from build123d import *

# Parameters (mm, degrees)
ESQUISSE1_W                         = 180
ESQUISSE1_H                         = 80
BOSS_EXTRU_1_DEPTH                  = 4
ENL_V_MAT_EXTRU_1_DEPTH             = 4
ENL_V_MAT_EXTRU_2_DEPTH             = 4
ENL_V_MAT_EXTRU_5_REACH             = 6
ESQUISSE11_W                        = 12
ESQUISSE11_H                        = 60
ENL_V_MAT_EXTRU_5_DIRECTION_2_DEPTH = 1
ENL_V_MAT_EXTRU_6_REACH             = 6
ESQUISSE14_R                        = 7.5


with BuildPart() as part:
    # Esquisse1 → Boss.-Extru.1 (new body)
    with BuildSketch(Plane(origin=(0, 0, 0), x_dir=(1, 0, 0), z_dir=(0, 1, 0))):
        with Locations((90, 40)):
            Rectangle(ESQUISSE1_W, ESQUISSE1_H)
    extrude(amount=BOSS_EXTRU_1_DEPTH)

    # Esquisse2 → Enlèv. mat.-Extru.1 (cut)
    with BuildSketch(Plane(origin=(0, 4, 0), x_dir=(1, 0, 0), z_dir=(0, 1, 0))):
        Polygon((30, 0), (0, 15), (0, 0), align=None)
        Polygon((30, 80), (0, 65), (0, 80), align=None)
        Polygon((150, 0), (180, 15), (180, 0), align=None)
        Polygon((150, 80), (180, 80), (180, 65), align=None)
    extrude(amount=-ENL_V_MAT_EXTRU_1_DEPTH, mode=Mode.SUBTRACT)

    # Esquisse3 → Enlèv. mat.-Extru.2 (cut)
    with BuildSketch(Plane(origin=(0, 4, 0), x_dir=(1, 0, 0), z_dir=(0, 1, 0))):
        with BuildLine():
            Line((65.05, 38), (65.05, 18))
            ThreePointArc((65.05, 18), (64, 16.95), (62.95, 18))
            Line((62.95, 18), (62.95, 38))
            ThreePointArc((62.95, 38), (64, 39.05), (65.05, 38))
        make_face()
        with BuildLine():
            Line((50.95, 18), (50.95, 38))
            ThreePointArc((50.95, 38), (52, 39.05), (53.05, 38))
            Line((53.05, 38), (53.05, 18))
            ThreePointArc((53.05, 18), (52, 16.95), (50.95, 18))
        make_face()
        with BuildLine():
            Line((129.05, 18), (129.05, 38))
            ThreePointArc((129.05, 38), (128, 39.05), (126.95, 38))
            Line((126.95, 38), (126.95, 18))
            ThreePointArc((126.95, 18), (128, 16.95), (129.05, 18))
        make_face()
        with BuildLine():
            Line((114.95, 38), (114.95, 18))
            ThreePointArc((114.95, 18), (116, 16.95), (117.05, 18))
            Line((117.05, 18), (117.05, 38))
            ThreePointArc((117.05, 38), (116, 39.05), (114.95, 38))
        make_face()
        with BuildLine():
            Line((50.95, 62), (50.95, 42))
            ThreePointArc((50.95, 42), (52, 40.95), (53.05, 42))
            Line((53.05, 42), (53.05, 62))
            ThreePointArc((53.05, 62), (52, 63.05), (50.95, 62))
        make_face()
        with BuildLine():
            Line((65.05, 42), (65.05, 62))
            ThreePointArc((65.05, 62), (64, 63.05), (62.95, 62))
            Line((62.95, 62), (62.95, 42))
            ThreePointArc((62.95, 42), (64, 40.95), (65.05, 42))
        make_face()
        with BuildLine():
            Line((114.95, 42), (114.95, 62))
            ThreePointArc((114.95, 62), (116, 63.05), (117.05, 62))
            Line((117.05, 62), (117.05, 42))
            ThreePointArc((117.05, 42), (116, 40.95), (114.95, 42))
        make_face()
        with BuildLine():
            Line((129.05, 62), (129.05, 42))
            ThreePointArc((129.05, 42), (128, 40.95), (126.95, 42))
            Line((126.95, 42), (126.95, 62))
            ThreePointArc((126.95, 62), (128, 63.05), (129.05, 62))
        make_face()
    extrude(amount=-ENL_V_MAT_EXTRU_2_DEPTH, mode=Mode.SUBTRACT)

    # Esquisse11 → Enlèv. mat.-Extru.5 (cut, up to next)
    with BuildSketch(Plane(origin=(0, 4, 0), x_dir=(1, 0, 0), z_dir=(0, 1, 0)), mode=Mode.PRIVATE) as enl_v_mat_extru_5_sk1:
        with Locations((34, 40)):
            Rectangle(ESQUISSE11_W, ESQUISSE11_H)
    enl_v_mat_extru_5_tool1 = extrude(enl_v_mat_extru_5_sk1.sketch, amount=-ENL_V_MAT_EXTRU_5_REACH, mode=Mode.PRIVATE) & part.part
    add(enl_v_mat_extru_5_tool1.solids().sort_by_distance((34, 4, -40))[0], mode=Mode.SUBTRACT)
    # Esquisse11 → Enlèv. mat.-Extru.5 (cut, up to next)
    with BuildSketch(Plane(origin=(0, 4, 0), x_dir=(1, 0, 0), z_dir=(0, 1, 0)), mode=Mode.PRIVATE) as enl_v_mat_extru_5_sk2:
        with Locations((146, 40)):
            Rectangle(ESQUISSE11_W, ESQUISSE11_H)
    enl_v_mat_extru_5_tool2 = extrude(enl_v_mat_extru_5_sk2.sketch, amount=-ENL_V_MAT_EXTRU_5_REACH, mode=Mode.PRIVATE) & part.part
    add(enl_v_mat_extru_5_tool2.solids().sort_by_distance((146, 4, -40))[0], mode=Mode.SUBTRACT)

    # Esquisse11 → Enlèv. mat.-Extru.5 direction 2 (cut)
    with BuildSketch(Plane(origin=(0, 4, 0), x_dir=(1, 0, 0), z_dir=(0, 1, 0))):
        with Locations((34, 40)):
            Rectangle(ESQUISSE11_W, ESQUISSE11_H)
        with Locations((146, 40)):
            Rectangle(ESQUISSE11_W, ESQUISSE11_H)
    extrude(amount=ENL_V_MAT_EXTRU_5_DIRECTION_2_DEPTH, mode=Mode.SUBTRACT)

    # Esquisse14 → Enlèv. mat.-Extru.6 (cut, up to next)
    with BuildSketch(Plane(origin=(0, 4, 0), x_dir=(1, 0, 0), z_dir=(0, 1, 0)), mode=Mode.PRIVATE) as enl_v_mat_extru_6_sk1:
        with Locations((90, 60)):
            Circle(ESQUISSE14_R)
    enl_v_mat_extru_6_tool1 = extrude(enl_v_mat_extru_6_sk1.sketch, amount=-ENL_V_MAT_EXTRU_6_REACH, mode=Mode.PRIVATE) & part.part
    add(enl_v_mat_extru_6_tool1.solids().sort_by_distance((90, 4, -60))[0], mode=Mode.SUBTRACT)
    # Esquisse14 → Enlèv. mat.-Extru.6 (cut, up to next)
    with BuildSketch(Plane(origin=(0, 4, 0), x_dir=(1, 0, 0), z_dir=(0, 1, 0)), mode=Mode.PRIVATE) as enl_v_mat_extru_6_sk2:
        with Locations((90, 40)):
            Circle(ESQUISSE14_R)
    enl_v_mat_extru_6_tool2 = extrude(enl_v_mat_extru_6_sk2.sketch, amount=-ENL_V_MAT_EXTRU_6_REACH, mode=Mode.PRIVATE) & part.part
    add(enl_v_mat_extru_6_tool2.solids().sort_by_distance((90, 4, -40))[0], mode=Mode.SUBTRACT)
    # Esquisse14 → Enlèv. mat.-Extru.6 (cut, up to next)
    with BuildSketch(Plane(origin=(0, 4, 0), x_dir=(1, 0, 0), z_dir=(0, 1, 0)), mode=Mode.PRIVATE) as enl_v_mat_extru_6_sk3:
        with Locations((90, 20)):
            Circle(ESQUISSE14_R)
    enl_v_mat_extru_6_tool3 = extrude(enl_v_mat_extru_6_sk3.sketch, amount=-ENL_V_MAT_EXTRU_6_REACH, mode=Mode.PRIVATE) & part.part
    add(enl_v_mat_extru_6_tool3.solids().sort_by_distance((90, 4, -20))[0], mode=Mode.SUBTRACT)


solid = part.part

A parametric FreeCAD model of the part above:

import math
import FreeCAD as App
import Part
import Sketcher
from FreeCAD import Vector

doc = App.newDocument("Part")
body = doc.addObject("PartDesign::Body", "Body")

sketch1 = body.newObject("Sketcher::SketchObject", "Sketch")
sketch1.AttachmentSupport = (doc.getObject("XZ_Plane"), [""])
sketch1.MapMode = "FlatFace"
sketch1.addGeometry([
    Part.LineSegment(Vector(0, -80, 0), Vector(0, 0, 0)),
    Part.LineSegment(Vector(0, 0, 0), Vector(180, 0, 0)),
    Part.LineSegment(Vector(180, 0, 0), Vector(180, -80, 0)),
    Part.LineSegment(Vector(180, -80, 0), Vector(0, -80, 0)),
], False)
sketch1.addConstraint([
    Sketcher.Constraint("Coincident", 0, 2, 1, 1),
    Sketcher.Constraint("Coincident", 1, 2, 2, 1),
    Sketcher.Constraint("Coincident", 2, 2, 3, 1),
    Sketcher.Constraint("Coincident", 3, 2, 0, 1),
    Sketcher.Constraint("Vertical", 0),
    Sketcher.Constraint("Horizontal", 1),
    Sketcher.Constraint("Vertical", 2),
    Sketcher.Constraint("Horizontal", 3),
    Sketcher.Constraint("Coincident", 0, 2, -1, 1),
    Sketcher.Constraint("DistanceX", 1, 1, 1, 2, 180.0),
    Sketcher.Constraint("DistanceY", 0, 1, 0, 2, 80.0),
])
pad1 = body.newObject("PartDesign::Pad", "Pad")
pad1.Profile = sketch1
pad1.Length = 4
pad1.Reversed = True

sketch2 = body.newObject("Sketcher::SketchObject", "Sketch001")
sketch2.AttachmentSupport = (doc.getObject("XZ_Plane"), [""])
sketch2.MapMode = "FlatFace"
sketch2.AttachmentOffset = App.Placement(Vector(0, 0, -4), App.Rotation())
sketch2.addGeometry([
    Part.LineSegment(Vector(30, 0, 0), Vector(0, -15, 0)),
    Part.LineSegment(Vector(0, -15, 0), Vector(0, 0, 0)),
    Part.LineSegment(Vector(0, 0, 0), Vector(30, 0, 0)),
    Part.LineSegment(Vector(0, -65, 0), Vector(30, -80, 0)),
    Part.LineSegment(Vector(30, -80, 0), Vector(0, -80, 0)),
    Part.LineSegment(Vector(0, -80, 0), Vector(0, -65, 0)),
    Part.LineSegment(Vector(180, -15, 0), Vector(150, 0, 0)),
    Part.LineSegment(Vector(150, 0, 0), Vector(180, 0, 0)),
    Part.LineSegment(Vector(180, 0, 0), Vector(180, -15, 0)),
    Part.LineSegment(Vector(180, -80, 0), Vector(150, -80, 0)),
    Part.LineSegment(Vector(150, -80, 0), Vector(180, -65, 0)),
    Part.LineSegment(Vector(180, -65, 0), Vector(180, -80, 0)),
], False)
sketch2.addConstraint([
    Sketcher.Constraint("Coincident", 0, 2, 1, 1),
    Sketcher.Constraint("Coincident", 1, 2, 2, 1),
    Sketcher.Constraint("Coincident", 2, 2, 0, 1),
    Sketcher.Constraint("Coincident", 3, 2, 4, 1),
    Sketcher.Constraint("Coincident", 4, 2, 5, 1),
    Sketcher.Constraint("Coincident", 5, 2, 3, 1),
    Sketcher.Constraint("Coincident", 6, 2, 7, 1),
    Sketcher.Constraint("Coincident", 7, 2, 8, 1),
    Sketcher.Constraint("Coincident", 8, 2, 6, 1),
    Sketcher.Constraint("Coincident", 9, 2, 10, 1),
    Sketcher.Constraint("Coincident", 10, 2, 11, 1),
    Sketcher.Constraint("Coincident", 11, 2, 9, 1),
    Sketcher.Constraint("Vertical", 1),
    Sketcher.Constraint("Horizontal", 2),
    Sketcher.Constraint("Horizontal", 4),
    Sketcher.Constraint("Vertical", 5),
    Sketcher.Constraint("Horizontal", 7),
    Sketcher.Constraint("Vertical", 8),
    Sketcher.Constraint("Horizontal", 9),
    Sketcher.Constraint("Vertical", 11),
    Sketcher.Constraint("Coincident", 1, 2, -1, 1),
    Sketcher.Constraint("PointOnObject", 4, 2, -2),
    Sketcher.Constraint("PointOnObject", 6, 2, -1),
    Sketcher.Constraint("Parallel", 3, 6),
    Sketcher.Constraint("Parallel", 0, 10),
    Sketcher.Constraint("Horizontal", 0, 2, 8, 2),
    Sketcher.Constraint("Horizontal", 4, 2, 9, 2),
    Sketcher.Constraint("Horizontal", 5, 2, 10, 2),
    Sketcher.Constraint("Vertical", 2, 2, 3, 2),
    Sketcher.Constraint("Vertical", 6, 2, 9, 2),
    Sketcher.Constraint("Vertical", 8, 2, 10, 2),
    Sketcher.Constraint("DistanceX", 2, 1, 2, 2, 30.0),
    Sketcher.Constraint("DistanceY", 1, 1, 1, 2, 15.0),
    Sketcher.Constraint("DistanceY", 3, 2, -1, 1, 80.0),
    Sketcher.Constraint("DistanceX", -1, 1, 6, 2, 150.0),
])
pocket1 = body.newObject("PartDesign::Pocket", "Pocket")
pocket1.Profile = sketch2
pocket1.Length = 4
pocket1.Reversed = True

sketch3 = body.newObject("Sketcher::SketchObject", "Sketch002")
sketch3.AttachmentSupport = (doc.getObject("XZ_Plane"), [""])
sketch3.MapMode = "FlatFace"
sketch3.AttachmentOffset = App.Placement(Vector(0, 0, -4), App.Rotation())
sketch3.addGeometry([
    Part.LineSegment(Vector(65, -18, 0), Vector(65, -38, 0)),
    Part.ArcOfCircle(Part.Circle(Vector(64, -38, 0), Vector(0, 0, 1), 1.1), math.radians(180), math.radians(360)),
    Part.LineSegment(Vector(63, -38, 0), Vector(63, -18, 0)),
    Part.ArcOfCircle(Part.Circle(Vector(64, -18, 0), Vector(0, 0, 1), 1.1), math.radians(0), math.radians(180)),
    Part.LineSegment(Vector(51, -38, 0), Vector(51, -18, 0)),
    Part.ArcOfCircle(Part.Circle(Vector(52, -18, 0), Vector(0, 0, 1), 1.1), math.radians(0), math.radians(180)),
    Part.LineSegment(Vector(53, -18, 0), Vector(53, -38, 0)),
    Part.ArcOfCircle(Part.Circle(Vector(52, -38, 0), Vector(0, 0, 1), 1.1), math.radians(180), math.radians(360)),
    Part.LineSegment(Vector(129.1, -18, 0), Vector(129.1, -38, 0)),
    Part.ArcOfCircle(Part.Circle(Vector(128, -38, 0), Vector(0, 0, 1), 1.1), math.radians(180), math.radians(360)),
    Part.LineSegment(Vector(127, -38, 0), Vector(127, -18, 0)),
    Part.ArcOfCircle(Part.Circle(Vector(128, -18, 0), Vector(0, 0, 1), 1.1), math.radians(0), math.radians(180)),
    Part.LineSegment(Vector(115, -38, 0), Vector(115, -18, 0)),
    Part.ArcOfCircle(Part.Circle(Vector(116, -18, 0), Vector(0, 0, 1), 1.1), math.radians(0), math.radians(180)),
    Part.LineSegment(Vector(117, -18, 0), Vector(117, -38, 0)),
    Part.ArcOfCircle(Part.Circle(Vector(116, -38, 0), Vector(0, 0, 1), 1.1), math.radians(180), math.radians(360)),
    Part.LineSegment(Vector(51, -62, 0), Vector(51, -42, 0)),
    Part.ArcOfCircle(Part.Circle(Vector(52, -42, 0), Vector(0, 0, 1), 1.1), math.radians(0), math.radians(180)),
    Part.LineSegment(Vector(53, -42, 0), Vector(53, -62, 0)),
    Part.ArcOfCircle(Part.Circle(Vector(52, -62, 0), Vector(0, 0, 1), 1.1), math.radians(180), math.radians(360)),
    Part.LineSegment(Vector(65, -42, 0), Vector(65, -62, 0)),
    Part.ArcOfCircle(Part.Circle(Vector(64, -62, 0), Vector(0, 0, 1), 1.1), math.radians(180), math.radians(360)),
    Part.LineSegment(Vector(63, -62, 0), Vector(63, -42, 0)),
    Part.ArcOfCircle(Part.Circle(Vector(64, -42, 0), Vector(0, 0, 1), 1.1), math.radians(0), math.radians(180)),
    Part.LineSegment(Vector(115, -62, 0), Vector(115, -42, 0)),
    Part.ArcOfCircle(Part.Circle(Vector(116, -42, 0), Vector(0, 0, 1), 1.1), math.radians(0), math.radians(180)),
    Part.LineSegment(Vector(117, -42, 0), Vector(117, -62, 0)),
    Part.ArcOfCircle(Part.Circle(Vector(116, -62, 0), Vector(0, 0, 1), 1.1), math.radians(180), math.radians(360)),
    Part.LineSegment(Vector(129.1, -42, 0), Vector(129.1, -62, 0)),
    Part.ArcOfCircle(Part.Circle(Vector(128, -62, 0), Vector(0, 0, 1), 1.1), math.radians(180), math.radians(360)),
    Part.LineSegment(Vector(127, -62, 0), Vector(127, -42, 0)),
    Part.ArcOfCircle(Part.Circle(Vector(128, -42, 0), Vector(0, 0, 1), 1.1), math.radians(0), math.radians(180)),
], False)
sketch3.addConstraint([
    Sketcher.Constraint("Tangent", 0, 2, 1, 2),
    Sketcher.Constraint("Tangent", 1, 1, 2, 1),
    Sketcher.Constraint("Tangent", 2, 2, 3, 2),
    Sketcher.Constraint("Tangent", 3, 1, 0, 1),
    Sketcher.Constraint("Tangent", 4, 2, 5, 2),
    Sketcher.Constraint("Tangent", 5, 1, 6, 1),
    Sketcher.Constraint("Tangent", 6, 2, 7, 2),
    Sketcher.Constraint("Tangent", 7, 1, 4, 1),
    Sketcher.Constraint("Tangent", 8, 2, 9, 2),
    Sketcher.Constraint("Tangent", 9, 1, 10, 1),
    Sketcher.Constraint("Tangent", 10, 2, 11, 2),
    Sketcher.Constraint("Tangent", 11, 1, 8, 1),
    Sketcher.Constraint("Tangent", 12, 2, 13, 2),
    Sketcher.Constraint("Tangent", 13, 1, 14, 1),
    Sketcher.Constraint("Tangent", 14, 2, 15, 2),
    Sketcher.Constraint("Tangent", 15, 1, 12, 1),
    Sketcher.Constraint("Tangent", 16, 2, 17, 2),
    Sketcher.Constraint("Tangent", 17, 1, 18, 1),
    Sketcher.Constraint("Tangent", 18, 2, 19, 2),
    Sketcher.Constraint("Tangent", 19, 1, 16, 1),
    Sketcher.Constraint("Tangent", 20, 2, 21, 2),
    Sketcher.Constraint("Tangent", 21, 1, 22, 1),
    Sketcher.Constraint("Tangent", 22, 2, 23, 2),
    Sketcher.Constraint("Tangent", 23, 1, 20, 1),
    Sketcher.Constraint("Tangent", 24, 2, 25, 2),
    Sketcher.Constraint("Tangent", 25, 1, 26, 1),
    Sketcher.Constraint("Tangent", 26, 2, 27, 2),
    Sketcher.Constraint("Tangent", 27, 1, 24, 1),
    Sketcher.Constraint("Tangent", 28, 2, 29, 2),
    Sketcher.Constraint("Tangent", 29, 1, 30, 1),
    Sketcher.Constraint("Tangent", 30, 2, 31, 2),
    Sketcher.Constraint("Tangent", 31, 1, 28, 1),
    Sketcher.Constraint("Vertical", 0),
    Sketcher.Constraint("Vertical", 2),
    Sketcher.Constraint("Vertical", 4),
    Sketcher.Constraint("Vertical", 6),
    Sketcher.Constraint("Vertical", 8),
    Sketcher.Constraint("Vertical", 10),
    Sketcher.Constraint("Vertical", 12),
    Sketcher.Constraint("Vertical", 14),
    Sketcher.Constraint("Vertical", 16),
    Sketcher.Constraint("Vertical", 18),
    Sketcher.Constraint("Vertical", 20),
    Sketcher.Constraint("Vertical", 22),
    Sketcher.Constraint("Vertical", 24),
    Sketcher.Constraint("Vertical", 26),
    Sketcher.Constraint("Vertical", 28),
    Sketcher.Constraint("Vertical", 30),
    Sketcher.Constraint("Equal", 3, 5),
    Sketcher.Constraint("Equal", 7, 9),
    Sketcher.Constraint("Equal", 11, 13),
    Sketcher.Constraint("Equal", 15, 17),
    Sketcher.Constraint("Equal", 19, 21),
    Sketcher.Constraint("Equal", 23, 25),
    Sketcher.Constraint("Equal", 27, 29),
    Sketcher.Constraint("Horizontal", 3, 3, 5, 3),
    Sketcher.Constraint("Horizontal", 1, 3, 7, 3),
    Sketcher.Constraint("Horizontal", 7, 3, 9, 3),
    Sketcher.Constraint("Horizontal", 5, 3, 11, 3),
    Sketcher.Constraint("Horizontal", 11, 3, 13, 3),
    Sketcher.Constraint("Horizontal", 9, 3, 15, 3),
    Sketcher.Constraint("Horizontal", 19, 3, 21, 3),
    Sketcher.Constraint("Horizontal", 17, 3, 23, 3),
    Sketcher.Constraint("Horizontal", 23, 3, 25, 3),
    Sketcher.Constraint("Horizontal", 21, 3, 27, 3),
    Sketcher.Constraint("Horizontal", 27, 3, 29, 3),
    Sketcher.Constraint("Horizontal", 25, 3, 31, 3),
    Sketcher.Constraint("Vertical", 7, 3, 17, 3),
    Sketcher.Constraint("Vertical", 3, 3, 21, 3),
    Sketcher.Constraint("Vertical", 15, 3, 25, 3),
    Sketcher.Constraint("Vertical", 11, 3, 29, 3),
    Sketcher.Constraint("Equal", 14, 16),
    Sketcher.Constraint("DistanceY", 0, 2, 0, 1, 20.0),
    Sketcher.Constraint("Radius", 1, 1.05),
    Sketcher.Constraint("DistanceX", -1, 1, 1, 3, 64.0),
    Sketcher.Constraint("DistanceY", 1, 3, -1, 1, 38.0),
    Sketcher.Constraint("DistanceX", -1, 1, 5, 3, 52.0),
    Sketcher.Constraint("DistanceX", -1, 1, 9, 3, 128.0),
    Sketcher.Constraint("DistanceX", -1, 1, 13, 3, 116.0),
    Sketcher.Constraint("DistanceY", 17, 3, -1, 1, 42.0),
])
pocket2 = body.newObject("PartDesign::Pocket", "Pocket001")
pocket2.Profile = sketch3
pocket2.Length = 4
pocket2.Reversed = True

sketch4 = body.newObject("Sketcher::SketchObject", "Sketch003")
sketch4.AttachmentSupport = (doc.getObject("XZ_Plane"), [""])
sketch4.MapMode = "FlatFace"
sketch4.AttachmentOffset = App.Placement(Vector(0, 0, -4), App.Rotation())
sketch4.addGeometry([
    Part.LineSegment(Vector(28, -70, 0), Vector(28, -10, 0)),
    Part.LineSegment(Vector(28, -10, 0), Vector(40, -10, 0)),
    Part.LineSegment(Vector(40, -10, 0), Vector(40, -70, 0)),
    Part.LineSegment(Vector(40, -70, 0), Vector(28, -70, 0)),
], False)
sketch4.addConstraint([
    Sketcher.Constraint("Coincident", 0, 2, 1, 1),
    Sketcher.Constraint("Coincident", 1, 2, 2, 1),
    Sketcher.Constraint("Coincident", 2, 2, 3, 1),
    Sketcher.Constraint("Coincident", 3, 2, 0, 1),
    Sketcher.Constraint("Vertical", 0),
    Sketcher.Constraint("Horizontal", 1),
    Sketcher.Constraint("Vertical", 2),
    Sketcher.Constraint("Horizontal", 3),
    Sketcher.Constraint("DistanceX", 1, 1, 1, 2, 12.0),
    Sketcher.Constraint("DistanceY", 0, 1, 0, 2, 60.0),
    Sketcher.Constraint("DistanceX", -1, 1, 0, 2, 28.0),
    Sketcher.Constraint("DistanceY", 0, 2, -1, 1, 10.0),
])
pocket3 = body.newObject("PartDesign::Pocket", "Pocket002")
pocket3.Profile = sketch4
pocket3.Type = "UpToFirst"
pocket3.Reversed = True

sketch5 = body.newObject("Sketcher::SketchObject", "Sketch004")
sketch5.AttachmentSupport = (doc.getObject("XZ_Plane"), [""])
sketch5.MapMode = "FlatFace"
sketch5.AttachmentOffset = App.Placement(Vector(0, 0, -4), App.Rotation())
sketch5.addGeometry([
    Part.LineSegment(Vector(140, -70, 0), Vector(140, -10, 0)),
    Part.LineSegment(Vector(140, -10, 0), Vector(152, -10, 0)),
    Part.LineSegment(Vector(152, -10, 0), Vector(152, -70, 0)),
    Part.LineSegment(Vector(152, -70, 0), Vector(140, -70, 0)),
], False)
sketch5.addConstraint([
    Sketcher.Constraint("Coincident", 0, 2, 1, 1),
    Sketcher.Constraint("Coincident", 1, 2, 2, 1),
    Sketcher.Constraint("Coincident", 2, 2, 3, 1),
    Sketcher.Constraint("Coincident", 3, 2, 0, 1),
    Sketcher.Constraint("Vertical", 0),
    Sketcher.Constraint("Horizontal", 1),
    Sketcher.Constraint("Vertical", 2),
    Sketcher.Constraint("Horizontal", 3),
    Sketcher.Constraint("DistanceX", 1, 1, 1, 2, 12.0),
    Sketcher.Constraint("DistanceY", 0, 1, 0, 2, 60.0),
    Sketcher.Constraint("DistanceX", -1, 1, 0, 2, 140.0),
    Sketcher.Constraint("DistanceY", 0, 2, -1, 1, 10.0),
])
pocket4 = body.newObject("PartDesign::Pocket", "Pocket003")
pocket4.Profile = sketch5
pocket4.Type = "UpToFirst"
pocket4.Reversed = True

sketch6 = body.newObject("Sketcher::SketchObject", "Sketch005")
sketch6.AttachmentSupport = (doc.getObject("XZ_Plane"), [""])
sketch6.MapMode = "FlatFace"
sketch6.AttachmentOffset = App.Placement(Vector(0, 0, -4), App.Rotation())
sketch6.addGeometry([
    Part.LineSegment(Vector(28, -70, 0), Vector(28, -10, 0)),
    Part.LineSegment(Vector(28, -10, 0), Vector(40, -10, 0)),
    Part.LineSegment(Vector(40, -10, 0), Vector(40, -70, 0)),
    Part.LineSegment(Vector(40, -70, 0), Vector(28, -70, 0)),
    Part.LineSegment(Vector(140, -70, 0), Vector(140, -10, 0)),
    Part.LineSegment(Vector(140, -10, 0), Vector(152, -10, 0)),
    Part.LineSegment(Vector(152, -10, 0), Vector(152, -70, 0)),
    Part.LineSegment(Vector(152, -70, 0), Vector(140, -70, 0)),
], False)
sketch6.addConstraint([
    Sketcher.Constraint("Coincident", 0, 2, 1, 1),
    Sketcher.Constraint("Coincident", 1, 2, 2, 1),
    Sketcher.Constraint("Coincident", 2, 2, 3, 1),
    Sketcher.Constraint("Coincident", 3, 2, 0, 1),
    Sketcher.Constraint("Coincident", 4, 2, 5, 1),
    Sketcher.Constraint("Coincident", 5, 2, 6, 1),
    Sketcher.Constraint("Coincident", 6, 2, 7, 1),
    Sketcher.Constraint("Coincident", 7, 2, 4, 1),
    Sketcher.Constraint("Vertical", 0),
    Sketcher.Constraint("Horizontal", 1),
    Sketcher.Constraint("Vertical", 2),
    Sketcher.Constraint("Horizontal", 3),
    Sketcher.Constraint("Vertical", 4),
    Sketcher.Constraint("Horizontal", 5),
    Sketcher.Constraint("Vertical", 6),
    Sketcher.Constraint("Horizontal", 7),
    Sketcher.Constraint("Horizontal", 1, 2, 4, 2),
    Sketcher.Constraint("Horizontal", 3, 2, 6, 2),
    Sketcher.Constraint("Equal", 3, 5),
    Sketcher.Constraint("DistanceX", 1, 1, 1, 2, 12.0),
    Sketcher.Constraint("DistanceY", 0, 1, 0, 2, 60.0),
    Sketcher.Constraint("DistanceX", -1, 1, 0, 2, 28.0),
    Sketcher.Constraint("DistanceY", 0, 2, -1, 1, 10.0),
    Sketcher.Constraint("DistanceX", -1, 1, 4, 2, 140.0),
])
pocket5 = body.newObject("PartDesign::Pocket", "Pocket004")
pocket5.Profile = sketch6
pocket5.Length = 1

sketch7 = body.newObject("Sketcher::SketchObject", "Sketch006")
sketch7.AttachmentSupport = (doc.getObject("XZ_Plane"), [""])
sketch7.MapMode = "FlatFace"
sketch7.AttachmentOffset = App.Placement(Vector(0, 0, -4), App.Rotation())
sketch7.addGeometry(Part.Circle(Vector(90, -60, 0), Vector(0, 0, 1), 8), False)
sketch7.addConstraint([
    Sketcher.Constraint("Diameter", 0, 15.0),
    Sketcher.Constraint("DistanceX", -1, 1, 0, 3, 90.0),
    Sketcher.Constraint("DistanceY", 0, 3, -1, 1, 60.0),
])
pocket6 = body.newObject("PartDesign::Pocket", "Pocket005")
pocket6.Profile = sketch7
pocket6.Type = "UpToFirst"
pocket6.Reversed = True

sketch8 = body.newObject("Sketcher::SketchObject", "Sketch007")
sketch8.AttachmentSupport = (doc.getObject("XZ_Plane"), [""])
sketch8.MapMode = "FlatFace"
sketch8.AttachmentOffset = App.Placement(Vector(0, 0, -4), App.Rotation())
sketch8.addGeometry(Part.Circle(Vector(90, -40, 0), Vector(0, 0, 1), 8), False)
sketch8.addConstraint([
    Sketcher.Constraint("Diameter", 0, 15.0),
    Sketcher.Constraint("DistanceX", -1, 1, 0, 3, 90.0),
    Sketcher.Constraint("DistanceY", 0, 3, -1, 1, 40.0),
])
pocket7 = body.newObject("PartDesign::Pocket", "Pocket006")
pocket7.Profile = sketch8
pocket7.Type = "UpToFirst"
pocket7.Reversed = True

sketch9 = body.newObject("Sketcher::SketchObject", "Sketch008")
sketch9.AttachmentSupport = (doc.getObject("XZ_Plane"), [""])
sketch9.MapMode = "FlatFace"
sketch9.AttachmentOffset = App.Placement(Vector(0, 0, -4), App.Rotation())
sketch9.addGeometry(Part.Circle(Vector(90, -20, 0), Vector(0, 0, 1), 8), False)
sketch9.addConstraint([
    Sketcher.Constraint("Diameter", 0, 15.0),
    Sketcher.Constraint("DistanceX", -1, 1, 0, 3, 90.0),
    Sketcher.Constraint("DistanceY", 0, 3, -1, 1, 20.0),
])
pocket8 = body.newObject("PartDesign::Pocket", "Pocket007")
pocket8.Profile = sketch9
pocket8.Type = "UpToFirst"
pocket8.Reversed = True

doc.recompute()
